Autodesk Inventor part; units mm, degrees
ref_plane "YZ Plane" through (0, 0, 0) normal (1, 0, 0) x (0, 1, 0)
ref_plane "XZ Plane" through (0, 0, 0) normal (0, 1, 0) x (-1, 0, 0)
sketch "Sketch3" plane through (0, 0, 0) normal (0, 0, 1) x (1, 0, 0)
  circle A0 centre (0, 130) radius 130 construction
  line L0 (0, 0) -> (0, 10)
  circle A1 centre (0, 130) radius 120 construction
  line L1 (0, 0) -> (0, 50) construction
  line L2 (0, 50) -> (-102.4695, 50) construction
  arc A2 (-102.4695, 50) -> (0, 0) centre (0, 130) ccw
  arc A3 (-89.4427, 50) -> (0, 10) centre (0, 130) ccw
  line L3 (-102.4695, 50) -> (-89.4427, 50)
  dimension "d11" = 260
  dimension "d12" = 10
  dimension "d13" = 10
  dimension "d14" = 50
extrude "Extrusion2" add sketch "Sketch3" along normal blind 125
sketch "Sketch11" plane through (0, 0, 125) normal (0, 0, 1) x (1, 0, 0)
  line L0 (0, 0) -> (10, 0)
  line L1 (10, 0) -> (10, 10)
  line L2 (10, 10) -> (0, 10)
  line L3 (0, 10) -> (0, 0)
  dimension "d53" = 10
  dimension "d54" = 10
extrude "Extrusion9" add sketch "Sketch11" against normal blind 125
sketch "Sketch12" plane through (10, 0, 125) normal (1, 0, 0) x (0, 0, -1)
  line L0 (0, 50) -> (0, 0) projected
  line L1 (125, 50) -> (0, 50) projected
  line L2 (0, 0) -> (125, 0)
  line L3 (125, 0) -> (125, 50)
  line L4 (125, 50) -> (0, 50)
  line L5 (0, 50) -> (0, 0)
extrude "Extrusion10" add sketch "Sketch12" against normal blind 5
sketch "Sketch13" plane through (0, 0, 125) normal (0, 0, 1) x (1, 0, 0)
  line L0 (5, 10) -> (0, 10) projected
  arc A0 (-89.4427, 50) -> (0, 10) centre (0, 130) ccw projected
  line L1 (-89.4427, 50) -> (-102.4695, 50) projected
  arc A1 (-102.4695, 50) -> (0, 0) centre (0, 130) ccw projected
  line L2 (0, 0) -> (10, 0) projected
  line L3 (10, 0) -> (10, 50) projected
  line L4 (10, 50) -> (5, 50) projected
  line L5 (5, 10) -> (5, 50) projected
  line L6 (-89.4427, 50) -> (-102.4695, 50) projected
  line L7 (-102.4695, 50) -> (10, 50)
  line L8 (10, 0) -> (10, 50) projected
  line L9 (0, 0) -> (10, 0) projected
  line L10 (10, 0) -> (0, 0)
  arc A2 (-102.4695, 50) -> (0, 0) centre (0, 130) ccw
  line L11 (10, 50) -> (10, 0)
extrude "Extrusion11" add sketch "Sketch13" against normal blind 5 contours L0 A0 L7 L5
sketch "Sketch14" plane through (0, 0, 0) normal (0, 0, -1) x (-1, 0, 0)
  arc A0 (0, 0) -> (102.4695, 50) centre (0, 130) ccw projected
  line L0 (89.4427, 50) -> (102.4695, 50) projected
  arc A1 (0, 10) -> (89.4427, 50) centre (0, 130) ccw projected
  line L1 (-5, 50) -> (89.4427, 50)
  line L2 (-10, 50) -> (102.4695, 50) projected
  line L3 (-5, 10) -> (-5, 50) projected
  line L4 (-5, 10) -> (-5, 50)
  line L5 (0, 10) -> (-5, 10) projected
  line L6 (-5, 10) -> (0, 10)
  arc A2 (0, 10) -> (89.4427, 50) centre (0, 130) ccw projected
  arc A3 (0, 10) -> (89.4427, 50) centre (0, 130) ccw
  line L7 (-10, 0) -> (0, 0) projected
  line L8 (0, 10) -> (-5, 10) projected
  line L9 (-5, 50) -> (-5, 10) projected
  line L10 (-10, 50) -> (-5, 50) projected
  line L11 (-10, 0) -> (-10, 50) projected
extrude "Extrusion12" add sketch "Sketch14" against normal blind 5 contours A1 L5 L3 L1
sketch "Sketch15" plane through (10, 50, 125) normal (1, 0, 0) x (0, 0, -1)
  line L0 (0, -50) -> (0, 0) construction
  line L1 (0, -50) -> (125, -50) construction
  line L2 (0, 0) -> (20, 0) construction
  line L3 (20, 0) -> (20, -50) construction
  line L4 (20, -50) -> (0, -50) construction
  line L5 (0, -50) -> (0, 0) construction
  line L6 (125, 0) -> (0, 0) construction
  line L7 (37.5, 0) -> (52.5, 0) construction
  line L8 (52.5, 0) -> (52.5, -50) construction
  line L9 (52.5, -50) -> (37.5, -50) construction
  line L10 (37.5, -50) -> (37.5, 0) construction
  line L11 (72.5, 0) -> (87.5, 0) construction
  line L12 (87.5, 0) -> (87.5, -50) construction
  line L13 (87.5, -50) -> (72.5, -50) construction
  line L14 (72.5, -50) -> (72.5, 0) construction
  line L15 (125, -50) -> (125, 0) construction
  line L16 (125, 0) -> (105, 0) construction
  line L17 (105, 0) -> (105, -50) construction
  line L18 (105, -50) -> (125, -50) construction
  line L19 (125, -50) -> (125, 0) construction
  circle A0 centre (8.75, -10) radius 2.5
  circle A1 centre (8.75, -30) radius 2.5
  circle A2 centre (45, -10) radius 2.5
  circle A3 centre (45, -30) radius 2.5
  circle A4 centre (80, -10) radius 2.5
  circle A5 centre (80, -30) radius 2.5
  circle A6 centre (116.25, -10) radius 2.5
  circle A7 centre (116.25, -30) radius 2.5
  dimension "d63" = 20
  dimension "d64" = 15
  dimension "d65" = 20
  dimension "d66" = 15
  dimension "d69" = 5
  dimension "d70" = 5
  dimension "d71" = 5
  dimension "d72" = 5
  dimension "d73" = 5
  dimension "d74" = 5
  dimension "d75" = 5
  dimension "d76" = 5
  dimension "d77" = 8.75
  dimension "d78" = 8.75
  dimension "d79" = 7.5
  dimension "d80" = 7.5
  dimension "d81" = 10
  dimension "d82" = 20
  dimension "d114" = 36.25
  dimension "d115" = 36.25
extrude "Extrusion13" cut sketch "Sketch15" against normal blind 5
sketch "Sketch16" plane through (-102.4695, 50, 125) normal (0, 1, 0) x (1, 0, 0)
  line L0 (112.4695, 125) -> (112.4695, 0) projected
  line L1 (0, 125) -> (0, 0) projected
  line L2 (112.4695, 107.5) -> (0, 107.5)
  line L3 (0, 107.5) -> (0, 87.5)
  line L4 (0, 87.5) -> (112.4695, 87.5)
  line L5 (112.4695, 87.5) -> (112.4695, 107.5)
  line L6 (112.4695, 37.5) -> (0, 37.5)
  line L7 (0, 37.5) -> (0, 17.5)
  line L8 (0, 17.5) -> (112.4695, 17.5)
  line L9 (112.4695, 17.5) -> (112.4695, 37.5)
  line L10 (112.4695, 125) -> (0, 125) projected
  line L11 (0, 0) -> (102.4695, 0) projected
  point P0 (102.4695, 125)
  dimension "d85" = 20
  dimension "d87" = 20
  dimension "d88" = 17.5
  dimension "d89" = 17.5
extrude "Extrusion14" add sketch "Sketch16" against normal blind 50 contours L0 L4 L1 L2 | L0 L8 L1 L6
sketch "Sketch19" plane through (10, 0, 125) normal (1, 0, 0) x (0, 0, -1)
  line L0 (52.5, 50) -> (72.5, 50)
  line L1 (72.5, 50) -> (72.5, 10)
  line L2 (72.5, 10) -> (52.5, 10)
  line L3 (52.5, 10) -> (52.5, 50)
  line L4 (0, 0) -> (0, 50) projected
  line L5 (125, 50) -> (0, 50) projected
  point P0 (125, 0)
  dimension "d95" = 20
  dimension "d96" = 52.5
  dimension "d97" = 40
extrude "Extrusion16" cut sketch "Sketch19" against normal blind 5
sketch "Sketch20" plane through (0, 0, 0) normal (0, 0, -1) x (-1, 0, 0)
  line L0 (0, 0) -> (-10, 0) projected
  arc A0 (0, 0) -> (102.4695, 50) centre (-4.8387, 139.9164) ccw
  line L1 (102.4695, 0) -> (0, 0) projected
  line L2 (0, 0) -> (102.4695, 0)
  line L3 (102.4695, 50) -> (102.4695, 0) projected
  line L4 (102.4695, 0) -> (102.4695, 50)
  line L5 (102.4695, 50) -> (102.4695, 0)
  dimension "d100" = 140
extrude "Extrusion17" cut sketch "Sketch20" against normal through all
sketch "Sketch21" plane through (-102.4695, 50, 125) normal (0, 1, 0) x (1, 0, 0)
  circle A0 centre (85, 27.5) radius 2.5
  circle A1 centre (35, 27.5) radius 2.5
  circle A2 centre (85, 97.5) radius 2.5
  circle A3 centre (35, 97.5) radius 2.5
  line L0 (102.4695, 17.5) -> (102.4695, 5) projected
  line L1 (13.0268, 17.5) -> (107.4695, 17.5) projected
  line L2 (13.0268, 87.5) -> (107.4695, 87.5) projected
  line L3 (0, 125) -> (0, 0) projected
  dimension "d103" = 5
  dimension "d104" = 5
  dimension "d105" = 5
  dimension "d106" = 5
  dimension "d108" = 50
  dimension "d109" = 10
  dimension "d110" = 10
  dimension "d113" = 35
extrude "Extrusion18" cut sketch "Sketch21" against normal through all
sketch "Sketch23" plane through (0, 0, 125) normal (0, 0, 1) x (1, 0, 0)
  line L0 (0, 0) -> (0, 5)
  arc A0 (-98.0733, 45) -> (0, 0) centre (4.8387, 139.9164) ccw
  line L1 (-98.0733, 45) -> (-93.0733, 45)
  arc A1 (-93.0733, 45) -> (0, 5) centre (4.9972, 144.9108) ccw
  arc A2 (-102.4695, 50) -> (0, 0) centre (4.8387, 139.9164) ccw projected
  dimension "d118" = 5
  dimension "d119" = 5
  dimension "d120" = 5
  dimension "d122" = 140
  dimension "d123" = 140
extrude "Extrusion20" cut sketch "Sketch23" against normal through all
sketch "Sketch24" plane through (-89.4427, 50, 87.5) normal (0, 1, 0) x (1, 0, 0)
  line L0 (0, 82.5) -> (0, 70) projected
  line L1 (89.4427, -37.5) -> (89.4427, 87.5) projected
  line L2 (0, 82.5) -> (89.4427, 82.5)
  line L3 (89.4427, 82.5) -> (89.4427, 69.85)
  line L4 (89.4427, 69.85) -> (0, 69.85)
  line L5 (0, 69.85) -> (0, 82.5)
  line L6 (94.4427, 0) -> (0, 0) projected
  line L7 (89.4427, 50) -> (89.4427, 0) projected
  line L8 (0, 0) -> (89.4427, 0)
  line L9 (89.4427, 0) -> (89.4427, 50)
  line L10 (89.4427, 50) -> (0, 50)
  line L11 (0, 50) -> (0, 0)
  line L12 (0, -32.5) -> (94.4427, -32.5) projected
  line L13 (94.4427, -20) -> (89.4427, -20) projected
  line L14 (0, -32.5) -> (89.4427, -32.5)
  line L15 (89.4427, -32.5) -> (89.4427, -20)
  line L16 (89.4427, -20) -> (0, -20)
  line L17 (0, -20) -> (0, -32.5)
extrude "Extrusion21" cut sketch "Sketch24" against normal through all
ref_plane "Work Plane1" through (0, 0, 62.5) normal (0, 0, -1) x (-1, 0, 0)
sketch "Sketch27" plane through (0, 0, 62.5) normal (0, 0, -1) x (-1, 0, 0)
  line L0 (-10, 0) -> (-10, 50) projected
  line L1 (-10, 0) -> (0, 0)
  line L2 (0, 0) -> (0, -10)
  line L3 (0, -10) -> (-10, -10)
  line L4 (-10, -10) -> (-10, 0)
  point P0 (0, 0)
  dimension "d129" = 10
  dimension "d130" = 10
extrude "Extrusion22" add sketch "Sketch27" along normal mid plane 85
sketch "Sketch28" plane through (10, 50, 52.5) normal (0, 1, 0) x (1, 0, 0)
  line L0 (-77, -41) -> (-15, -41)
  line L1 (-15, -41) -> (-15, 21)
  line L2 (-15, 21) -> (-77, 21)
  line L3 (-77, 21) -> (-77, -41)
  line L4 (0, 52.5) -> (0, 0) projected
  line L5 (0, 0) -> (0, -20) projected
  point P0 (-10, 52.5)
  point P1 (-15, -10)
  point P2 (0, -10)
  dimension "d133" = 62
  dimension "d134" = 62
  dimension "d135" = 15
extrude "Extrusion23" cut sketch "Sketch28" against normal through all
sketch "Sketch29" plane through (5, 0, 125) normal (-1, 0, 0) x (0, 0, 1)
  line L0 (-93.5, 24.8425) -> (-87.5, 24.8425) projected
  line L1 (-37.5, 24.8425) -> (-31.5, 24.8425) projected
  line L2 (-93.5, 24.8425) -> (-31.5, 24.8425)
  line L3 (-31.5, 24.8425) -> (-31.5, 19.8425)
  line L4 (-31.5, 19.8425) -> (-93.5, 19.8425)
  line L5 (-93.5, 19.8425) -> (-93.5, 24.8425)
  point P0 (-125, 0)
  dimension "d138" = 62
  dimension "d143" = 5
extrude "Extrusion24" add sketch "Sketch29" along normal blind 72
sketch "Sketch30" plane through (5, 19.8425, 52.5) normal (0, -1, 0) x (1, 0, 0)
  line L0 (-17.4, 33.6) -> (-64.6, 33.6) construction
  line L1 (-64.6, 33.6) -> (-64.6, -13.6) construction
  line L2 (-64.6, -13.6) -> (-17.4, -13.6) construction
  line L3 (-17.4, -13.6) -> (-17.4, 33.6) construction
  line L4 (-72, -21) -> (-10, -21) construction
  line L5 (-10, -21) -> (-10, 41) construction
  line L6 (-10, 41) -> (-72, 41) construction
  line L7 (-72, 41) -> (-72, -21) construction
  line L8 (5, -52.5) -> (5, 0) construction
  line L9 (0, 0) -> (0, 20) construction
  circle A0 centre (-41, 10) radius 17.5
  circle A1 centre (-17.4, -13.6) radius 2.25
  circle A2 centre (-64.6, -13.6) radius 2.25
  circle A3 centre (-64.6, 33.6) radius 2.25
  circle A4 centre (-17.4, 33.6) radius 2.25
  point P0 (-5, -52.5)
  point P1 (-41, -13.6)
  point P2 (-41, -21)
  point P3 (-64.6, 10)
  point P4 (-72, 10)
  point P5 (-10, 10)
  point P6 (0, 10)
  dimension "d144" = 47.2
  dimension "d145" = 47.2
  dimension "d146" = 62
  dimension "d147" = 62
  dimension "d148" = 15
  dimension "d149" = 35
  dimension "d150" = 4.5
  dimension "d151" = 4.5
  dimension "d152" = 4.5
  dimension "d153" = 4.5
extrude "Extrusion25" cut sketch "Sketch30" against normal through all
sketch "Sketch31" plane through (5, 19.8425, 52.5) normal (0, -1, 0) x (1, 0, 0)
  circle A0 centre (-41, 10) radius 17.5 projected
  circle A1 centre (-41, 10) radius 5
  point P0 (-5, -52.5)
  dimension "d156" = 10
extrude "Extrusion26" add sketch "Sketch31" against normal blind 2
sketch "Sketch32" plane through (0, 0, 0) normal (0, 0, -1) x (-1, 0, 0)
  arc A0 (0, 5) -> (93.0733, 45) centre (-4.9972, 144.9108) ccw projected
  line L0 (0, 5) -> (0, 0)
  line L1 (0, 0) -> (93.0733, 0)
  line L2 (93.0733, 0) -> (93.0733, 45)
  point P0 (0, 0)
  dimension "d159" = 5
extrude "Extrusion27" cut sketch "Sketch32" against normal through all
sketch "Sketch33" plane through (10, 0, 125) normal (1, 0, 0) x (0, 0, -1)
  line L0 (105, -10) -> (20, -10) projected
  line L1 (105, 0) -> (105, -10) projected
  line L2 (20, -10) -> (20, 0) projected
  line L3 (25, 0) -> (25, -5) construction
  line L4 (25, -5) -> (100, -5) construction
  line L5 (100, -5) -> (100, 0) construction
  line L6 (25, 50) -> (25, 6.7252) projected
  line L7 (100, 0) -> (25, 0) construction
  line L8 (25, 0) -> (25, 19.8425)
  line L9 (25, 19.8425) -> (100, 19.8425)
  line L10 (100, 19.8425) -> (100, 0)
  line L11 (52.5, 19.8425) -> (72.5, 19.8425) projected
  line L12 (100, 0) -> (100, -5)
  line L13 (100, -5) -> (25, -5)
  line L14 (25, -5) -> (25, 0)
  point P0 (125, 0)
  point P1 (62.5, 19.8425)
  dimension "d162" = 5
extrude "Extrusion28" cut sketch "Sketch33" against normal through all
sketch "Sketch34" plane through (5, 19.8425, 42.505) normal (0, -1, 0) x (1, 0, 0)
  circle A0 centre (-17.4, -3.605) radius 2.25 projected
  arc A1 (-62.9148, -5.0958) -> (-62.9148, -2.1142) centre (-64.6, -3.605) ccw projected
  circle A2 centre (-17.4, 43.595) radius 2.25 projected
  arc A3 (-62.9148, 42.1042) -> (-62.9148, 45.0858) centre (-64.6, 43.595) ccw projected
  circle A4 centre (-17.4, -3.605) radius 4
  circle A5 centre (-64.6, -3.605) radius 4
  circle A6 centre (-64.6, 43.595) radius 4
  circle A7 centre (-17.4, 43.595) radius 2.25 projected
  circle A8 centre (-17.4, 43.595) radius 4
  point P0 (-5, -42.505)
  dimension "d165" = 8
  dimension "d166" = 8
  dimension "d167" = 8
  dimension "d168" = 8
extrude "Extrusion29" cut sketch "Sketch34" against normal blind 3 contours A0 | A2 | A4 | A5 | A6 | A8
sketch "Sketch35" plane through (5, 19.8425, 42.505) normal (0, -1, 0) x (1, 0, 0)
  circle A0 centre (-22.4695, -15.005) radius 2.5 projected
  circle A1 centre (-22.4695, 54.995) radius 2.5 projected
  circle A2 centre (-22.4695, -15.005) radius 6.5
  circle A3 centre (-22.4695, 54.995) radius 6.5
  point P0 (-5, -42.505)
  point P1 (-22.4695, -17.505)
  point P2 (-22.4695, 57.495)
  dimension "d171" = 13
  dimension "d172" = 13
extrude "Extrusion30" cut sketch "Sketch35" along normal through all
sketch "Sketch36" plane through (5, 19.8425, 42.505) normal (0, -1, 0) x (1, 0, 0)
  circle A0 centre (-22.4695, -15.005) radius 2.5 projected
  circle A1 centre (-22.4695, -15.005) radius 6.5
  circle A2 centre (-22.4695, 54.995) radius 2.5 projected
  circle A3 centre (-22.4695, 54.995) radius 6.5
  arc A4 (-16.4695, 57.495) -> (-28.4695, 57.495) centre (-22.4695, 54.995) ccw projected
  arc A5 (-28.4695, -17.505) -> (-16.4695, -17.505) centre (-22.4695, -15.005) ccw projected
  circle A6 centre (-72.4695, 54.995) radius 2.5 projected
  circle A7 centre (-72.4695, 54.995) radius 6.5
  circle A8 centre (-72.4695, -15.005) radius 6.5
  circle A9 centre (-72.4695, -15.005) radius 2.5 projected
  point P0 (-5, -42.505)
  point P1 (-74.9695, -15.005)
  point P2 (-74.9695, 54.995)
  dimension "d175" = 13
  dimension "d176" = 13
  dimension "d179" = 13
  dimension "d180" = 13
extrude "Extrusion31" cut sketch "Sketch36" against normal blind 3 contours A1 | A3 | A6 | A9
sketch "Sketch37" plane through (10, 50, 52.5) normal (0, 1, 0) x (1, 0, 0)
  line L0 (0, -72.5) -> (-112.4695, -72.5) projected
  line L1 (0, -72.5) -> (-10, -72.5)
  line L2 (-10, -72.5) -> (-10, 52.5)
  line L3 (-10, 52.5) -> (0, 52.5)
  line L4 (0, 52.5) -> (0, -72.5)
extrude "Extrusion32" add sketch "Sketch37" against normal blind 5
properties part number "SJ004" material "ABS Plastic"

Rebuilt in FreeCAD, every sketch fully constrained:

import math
import FreeCAD as App
import Part
import Sketcher

V = App.Vector


def add_polygon(sketch, points):
    """Adds a closed chain of lines whose ends are joined by coincident constraints."""
    first, n = sketch.GeometryCount, len(points)
    for a, b in zip(points, points[1:] + points[:1]):
        sketch.addGeometry(Part.LineSegment(App.Vector(*a, 0), App.Vector(*b, 0)), False)
    for i in range(n):
        sketch.addConstraint(Sketcher.Constraint("Coincident", first + i, 2, first + (i + 1) % n, 1))

doc = App.newDocument("Part")
body = doc.addObject("PartDesign::Body", "Body")

sketch1 = doc.addObject("Sketcher::SketchObject", "Sketch")
body.addObject(sketch1)
sketch1.AttachmentSupport = (doc.XY_Plane, [""])
sketch1.MapMode = "FlatFace"
sketch1.addGeometry(Part.ArcOfCircle(Part.Circle(V(0, 130, 0), V(0, 0, 1), 130), math.radians(-142), math.radians(-90)), False)
sketch1.addGeometry(Part.LineSegment(V(0, 0, 0), V(0, 10, 0)), False)
sketch1.addGeometry(Part.ArcOfCircle(Part.Circle(V(0, 130, 0), V(0, 0, 1), 120), math.radians(-138), math.radians(-90)), False)
sketch1.addGeometry(Part.LineSegment(V(-89, 50, 0), V(-102, 50, 0)), False)
sketch1.addConstraint(Sketcher.Constraint("Coincident", 0, 2, 1, 1))
sketch1.addConstraint(Sketcher.Constraint("Coincident", 1, 2, 2, 2))
sketch1.addConstraint(Sketcher.Constraint("Coincident", 2, 1, 3, 1))
sketch1.addConstraint(Sketcher.Constraint("Coincident", 3, 2, 0, 1))
sketch1.addConstraint(Sketcher.Constraint("Vertical", 1))
sketch1.addConstraint(Sketcher.Constraint("Horizontal", 3))
sketch1.addConstraint(Sketcher.Constraint("Coincident", 0, 2, -1, 1))
sketch1.addConstraint(Sketcher.Constraint("Coincident", 2, 3, 0, 3))
sketch1.addConstraint(Sketcher.Constraint("PointOnObject", 0, 3, -2))
sketch1.addConstraint(Sketcher.Constraint("Radius", 0, 130.0))
sketch1.addConstraint(Sketcher.Constraint("DistanceY", 1, 1, 1, 2, 10.0))
sketch1.addConstraint(Sketcher.Constraint("DistanceY", -1, 1, 2, 1, 50.0))
pad1 = doc.addObject("PartDesign::Pad", "Pad")
body.addObject(pad1)
pad1.Profile = sketch1
pad1.Length = 125

sketch2 = doc.addObject("Sketcher::SketchObject", "Sketch001")
body.addObject(sketch2)
sketch2.AttachmentSupport = (doc.XY_Plane, [""])
sketch2.MapMode = "FlatFace"
sketch2.AttachmentOffset = App.Placement(V(0, 0, 125), App.Rotation())
add_polygon(sketch2, [(0, 10), (0, 0), (10, 0), (10, 10)])
sketch2.addConstraint(Sketcher.Constraint("Vertical", 0))
sketch2.addConstraint(Sketcher.Constraint("Horizontal", 1))
sketch2.addConstraint(Sketcher.Constraint("Vertical", 2))
sketch2.addConstraint(Sketcher.Constraint("Horizontal", 3))
sketch2.addConstraint(Sketcher.Constraint("Coincident", 0, 2, -1, 1))
sketch2.addConstraint(Sketcher.Constraint("Equal", 3, 0))
sketch2.addConstraint(Sketcher.Constraint("DistanceX", 1, 1, 1, 2, 10.0))
pad2 = doc.addObject("PartDesign::Pad", "Pad001")
body.addObject(pad2)
pad2.Profile = sketch2
pad2.Length = 125
pad2.Reversed = True

sketch3 = doc.addObject("Sketcher::SketchObject", "Sketch002")
body.addObject(sketch3)
sketch3.AttachmentSupport = (doc.YZ_Plane, [""])
sketch3.MapMode = "FlatFace"
sketch3.AttachmentOffset = App.Placement(V(0, 0, 10), App.Rotation())
add_polygon(sketch3, [(50, 0), (50, 125), (0, 125), (0, 0)])
sketch3.addConstraint(Sketcher.Constraint("Vertical", 0))
sketch3.addConstraint(Sketcher.Constraint("Horizontal", 1))
sketch3.addConstraint(Sketcher.Constraint("Vertical", 2))
sketch3.addConstraint(Sketcher.Constraint("Horizontal", 3))
sketch3.addConstraint(Sketcher.Constraint("Coincident", 2, 2, -1, 1))
sketch3.addConstraint(Sketcher.Constraint("DistanceX", 1, 2, 1, 1, 50.0))
sketch3.addConstraint(Sketcher.Constraint("DistanceY", 0, 1, 0, 2, 125.0))
pad3 = doc.addObject("PartDesign::Pad", "Pad002")
body.addObject(pad3)
pad3.Profile = sketch3
pad3.Length = 5
pad3.Reversed = True

sketch4 = doc.addObject("Sketcher::SketchObject", "Sketch003")
body.addObject(sketch4)
sketch4.AttachmentSupport = (doc.XY_Plane, [""])
sketch4.MapMode = "FlatFace"
sketch4.AttachmentOffset = App.Placement(V(0, 0, 125), App.Rotation())
sketch4.addGeometry(Part.LineSegment(V(0, 10, 0), V(5, 10, 0)), False)
sketch4.addGeometry(Part.LineSegment(V(5, 10, 0), V(5, 50, 0)), False)
sketch4.addGeometry(Part.LineSegment(V(5, 50, 0), V(-89, 50, 0)), False)
sketch4.addGeometry(Part.ArcOfCircle(Part.Circle(V(0, 130, 0), V(0, 0, 1), 120), math.radians(-138), math.radians(-90)), False)
sketch4.addConstraint(Sketcher.Constraint("Coincident", 0, 2, 1, 1))
sketch4.addConstraint(Sketcher.Constraint("Coincident", 1, 2, 2, 1))
sketch4.addConstraint(Sketcher.Constraint("Coincident", 2, 2, 3, 1))
sketch4.addConstraint(Sketcher.Constraint("Tangent", 3, 2, 0, 1))
sketch4.addConstraint(Sketcher.Constraint("Horizontal", 0))
sketch4.addConstraint(Sketcher.Constraint("Vertical", 1))
sketch4.addConstraint(Sketcher.Constraint("Horizontal", 2))
sketch4.addConstraint(Sketcher.Constraint("PointOnObject", 3, 3, -2))
sketch4.addConstraint(Sketcher.Constraint("Radius", 3, 120.0))
sketch4.addConstraint(Sketcher.Constraint("DistanceX", 0, 1, 0, 2, 5.0))
sketch4.addConstraint(Sketcher.Constraint("DistanceY", 1, 1, 1, 2, 40.0))
sketch4.addConstraint(Sketcher.Constraint("DistanceY", -1, 1, 3, 3, 130.0))
pad4 = doc.addObject("PartDesign::Pad", "Pad003")
body.addObject(pad4)
pad4.Profile = sketch4
pad4.Length = 5
pad4.Reversed = True

sketch5 = doc.addObject("Sketcher::SketchObject", "Sketch004")
body.addObject(sketch5)
sketch5.AttachmentSupport = (doc.XY_Plane, [""])
sketch5.MapMode = "FlatFace"
sketch5.addGeometry(Part.ArcOfCircle(Part.Circle(V(0, 130, 0), V(0, 0, 1), 120), math.radians(-138), math.radians(-90)), False)
sketch5.addGeometry(Part.LineSegment(V(-89, 50, 0), V(5, 50, 0)), False)
sketch5.addGeometry(Part.LineSegment(V(5, 50, 0), V(5, 10, 0)), False)
sketch5.addGeometry(Part.LineSegment(V(5, 10, 0), V(0, 10, 0)), False)
sketch5.addConstraint(Sketcher.Constraint("Coincident", 0, 1, 1, 1))
sketch5.addConstraint(Sketcher.Constraint("Coincident", 1, 2, 2, 1))
sketch5.addConstraint(Sketcher.Constraint("Coincident", 2, 2, 3, 1))
sketch5.addConstraint(Sketcher.Constraint("Tangent", 3, 2, 0, 2))
sketch5.addConstraint(Sketcher.Constraint("Horizontal", 1))
sketch5.addConstraint(Sketcher.Constraint("Vertical", 2))
sketch5.addConstraint(Sketcher.Constraint("Horizontal", 3))
sketch5.addConstraint(Sketcher.Constraint("PointOnObject", 0, 3, -2))
sketch5.addConstraint(Sketcher.Constraint("Radius", 0, 120.0))
sketch5.addConstraint(Sketcher.Constraint("DistanceX", 3, 2, 3, 1, 5.0))
sketch5.addConstraint(Sketcher.Constraint("DistanceY", 2, 2, 2, 1, 40.0))
sketch5.addConstraint(Sketcher.Constraint("DistanceY", -1, 1, 0, 3, 130.0))
pad5 = doc.addObject("PartDesign::Pad", "Pad004")
body.addObject(pad5)
pad5.Profile = sketch5
pad5.Length = 5

sketch6 = doc.addObject("Sketcher::SketchObject", "Sketch005")
body.addObject(sketch6)
sketch6.AttachmentSupport = (doc.YZ_Plane, [""])
sketch6.MapMode = "FlatFace"
sketch6.AttachmentOffset = App.Placement(V(0, 0, 10), App.Rotation())
sketch6.addGeometry(Part.Circle(V(40, 116.2, 0), V(0, 0, 1), 2.5), False)
sketch6.addGeometry(Part.Circle(V(20, 116.2, 0), V(0, 0, 1), 2.5), False)
sketch6.addGeometry(Part.Circle(V(40, 80, 0), V(0, 0, 1), 2.5), False)
sketch6.addGeometry(Part.Circle(V(20, 80, 0), V(0, 0, 1), 2.5), False)
sketch6.addGeometry(Part.Circle(V(40, 45, 0), V(0, 0, 1), 2.5), False)
sketch6.addGeometry(Part.Circle(V(20, 45, 0), V(0, 0, 1), 2.5), False)
sketch6.addGeometry(Part.Circle(V(40, 8.8, 0), V(0, 0, 1), 2.5), False)
sketch6.addGeometry(Part.Circle(V(20, 8.8, 0), V(0, 0, 1), 2.5), False)
sketch6.addConstraint(Sketcher.Constraint("Equal", 0, 1))
sketch6.addConstraint(Sketcher.Constraint("Equal", 1, 2))
sketch6.addConstraint(Sketcher.Constraint("Equal", 2, 3))
sketch6.addConstraint(Sketcher.Constraint("Equal", 3, 4))
sketch6.addConstraint(Sketcher.Constraint("Equal", 4, 5))
sketch6.addConstraint(Sketcher.Constraint("Equal", 5, 6))
sketch6.addConstraint(Sketcher.Constraint("Equal", 6, 7))
sketch6.addConstraint(Sketcher.Constraint("Horizontal", 0, 3, 1, 3))
sketch6.addConstraint(Sketcher.Constraint("Horizontal", 2, 3, 3, 3))
sketch6.addConstraint(Sketcher.Constraint("Horizontal", 4, 3, 5, 3))
sketch6.addConstraint(Sketcher.Constraint("Horizontal", 6, 3, 7, 3))
sketch6.addConstraint(Sketcher.Constraint("Vertical", 0, 3, 2, 3))
sketch6.addConstraint(Sketcher.Constraint("Vertical", 1, 3, 3, 3))
sketch6.addConstraint(Sketcher.Constraint("Vertical", 2, 3, 4, 3))
sketch6.addConstraint(Sketcher.Constraint("Vertical", 3, 3, 5, 3))
sketch6.addConstraint(Sketcher.Constraint("Vertical", 4, 3, 6, 3))
sketch6.addConstraint(Sketcher.Constraint("Vertical", 5, 3, 7, 3))
sketch6.addConstraint(Sketcher.Constraint("Diameter", 0, 5.0))
sketch6.addConstraint(Sketcher.Constraint("DistanceX", -1, 1, 1, 3, 20.0))
sketch6.addConstraint(Sketcher.Constraint("DistanceX", 1, 3, 0, 3, 20.0))
sketch6.addConstraint(Sketcher.Constraint("DistanceY", -1, 1, 6, 3, 8.75))
sketch6.addConstraint(Sketcher.Constraint("DistanceY", 2, 3, 0, 3, 36.25))
sketch6.addConstraint(Sketcher.Constraint("DistanceY", 6, 3, 4, 3, 36.25))
sketch6.addConstraint(Sketcher.Constraint("DistanceY", -1, 1, 2, 3, 80.0))
pocket1 = doc.addObject("PartDesign::Pocket", "Pocket")
body.addObject(pocket1)
pocket1.Profile = sketch6
pocket1.Length = 5

sketch7 = doc.addObject("Sketcher::SketchObject", "Sketch006")
body.addObject(sketch7)
sketch7.AttachmentSupport = (doc.XZ_Plane, [""])
sketch7.MapMode = "FlatFace"
sketch7.AttachmentOffset = App.Placement(V(0, 0, -50), App.Rotation())
add_polygon(sketch7, [(10, 38), (10, 18), (-102, 18), (-102, 38)])
add_polygon(sketch7, [(10, 108), (10, 88), (-102, 88), (-102, 108)])
sketch7.addConstraint(Sketcher.Constraint("Vertical", 0))
sketch7.addConstraint(Sketcher.Constraint("Horizontal", 1))
sketch7.addConstraint(Sketcher.Constraint("Vertical", 2))
sketch7.addConstraint(Sketcher.Constraint("Horizontal", 3))
sketch7.addConstraint(Sketcher.Constraint("Vertical", 4))
sketch7.addConstraint(Sketcher.Constraint("Horizontal", 5))
sketch7.addConstraint(Sketcher.Constraint("Vertical", 6))
sketch7.addConstraint(Sketcher.Constraint("Horizontal", 7))
sketch7.addConstraint(Sketcher.Constraint("Vertical", 3, 2, 4, 2))
sketch7.addConstraint(Sketcher.Constraint("Vertical", 2, 2, 5, 2))
sketch7.addConstraint(Sketcher.Constraint("Equal", 2, 4))
sketch7.addConstraint(Sketcher.Constraint("DistanceY", 0, 2, 0, 1, 20.0))
sketch7.addConstraint(Sketcher.Constraint("DistanceY", -1, 1, 0, 2, 17.5))
sketch7.addConstraint(Sketcher.Constraint("DistanceX", -1, 1, 0, 2, 10.0))
sketch7.addConstraint(Sketcher.Constraint("DistanceY", 3, 2, 4, 2, 50.0))
sketch7.addConstraint(Sketcher.Constraint("DistanceX", 1, 2, 1, 1, 112.4695))
pad6 = doc.addObject("PartDesign::Pad", "Pad005")
body.addObject(pad6)
pad6.Profile = sketch7
pad6.Length = 50

sketch8 = doc.addObject("Sketcher::SketchObject", "Sketch007")
body.addObject(sketch8)
sketch8.AttachmentSupport = (doc.YZ_Plane, [""])
sketch8.MapMode = "FlatFace"
sketch8.AttachmentOffset = App.Placement(V(0, 0, 10), App.Rotation())
add_polygon(sketch8, [(50, 52), (50, 72), (10, 72), (10, 52)])
sketch8.addConstraint(Sketcher.Constraint("Vertical", 0))
sketch8.addConstraint(Sketcher.Constraint("Horizontal", 1))
sketch8.addConstraint(Sketcher.Constraint("Vertical", 2))
sketch8.addConstraint(Sketcher.Constraint("Horizontal", 3))
sketch8.addConstraint(Sketcher.Constraint("DistanceX", 1, 2, 1, 1, 40.0))
sketch8.addConstraint(Sketcher.Constraint("DistanceY", 0, 1, 0, 2, 20.0))
sketch8.addConstraint(Sketcher.Constraint("DistanceY", -1, 1, 2, 2, 52.5))
sketch8.addConstraint(Sketcher.Constraint("DistanceX", -1, 1, 0, 2, 50.0))
pocket2 = doc.addObject("PartDesign::Pocket", "Pocket001")
body.addObject(pocket2)
pocket2.Profile = sketch8
pocket2.Length = 5

sketch9 = doc.addObject("Sketcher::SketchObject", "Sketch008")
body.addObject(sketch9)
sketch9.AttachmentSupport = (doc.XY_Plane, [""])
sketch9.MapMode = "FlatFace"
sketch9.addGeometry(Part.ArcOfCircle(Part.Circle(V(5, 140, 0), V(0, 0, 1), 140), math.radians(-140), math.radians(-92)), False)
sketch9.addGeometry(Part.LineSegment(V(0, 0, 0), V(-102, 0, 0)), False)
sketch9.addGeometry(Part.LineSegment(V(-102, 0, 0), V(-102, 50, 0)), False)
sketch9.addConstraint(Sketcher.Constraint("Coincident", 0, 2, 1, 1))
sketch9.addConstraint(Sketcher.Constraint("Coincident", 1, 2, 2, 1))
sketch9.addConstraint(Sketcher.Constraint("Coincident", 2, 2, 0, 1))
sketch9.addConstraint(Sketcher.Constraint("Horizontal", 1))
sketch9.addConstraint(Sketcher.Constraint("Vertical", 2))
sketch9.addConstraint(Sketcher.Constraint("Coincident", 0, 2, -1, 1))
sketch9.addConstraint(Sketcher.Constraint("Radius", 0, 140.0))
sketch9.addConstraint(Sketcher.Constraint("DistanceY", 2, 1, 2, 2, 50.0))
sketch9.addConstraint(Sketcher.Constraint("DistanceX", 1, 2, 1, 1, 102.4695))
pocket3 = doc.addObject("PartDesign::Pocket", "Pocket002")
body.addObject(pocket3)
pocket3.Profile = sketch9
pocket3.Type = "ThroughAll"
pocket3.Reversed = True

sketch10 = doc.addObject("Sketcher::SketchObject", "Sketch009")
body.addObject(sketch10)
sketch10.AttachmentSupport = (doc.XZ_Plane, [""])
sketch10.MapMode = "FlatFace"
sketch10.AttachmentOffset = App.Placement(V(0, 0, -50), App.Rotation())
sketch10.addGeometry(Part.Circle(V(-17.5, 97.5, 0), V(0, 0, 1), 2.5), False)
sketch10.addGeometry(Part.Circle(V(-67.5, 97.5, 0), V(0, 0, 1), 2.5), False)
sketch10.addGeometry(Part.Circle(V(-17.5, 27.5, 0), V(0, 0, 1), 2.5), False)
sketch10.addGeometry(Part.Circle(V(-67.5, 27.5, 0), V(0, 0, 1), 2.5), False)
sketch10.addConstraint(Sketcher.Constraint("Equal", 0, 1))
sketch10.addConstraint(Sketcher.Constraint("Equal", 1, 2))
sketch10.addConstraint(Sketcher.Constraint("Equal", 2, 3))
sketch10.addConstraint(Sketcher.Constraint("Horizontal", 0, 3, 1, 3))
sketch10.addConstraint(Sketcher.Constraint("Horizontal", 2, 3, 3, 3))
sketch10.addConstraint(Sketcher.Constraint("Vertical", 0, 3, 2, 3))
sketch10.addConstraint(Sketcher.Constraint("Vertical", 1, 3, 3, 3))
sketch10.addConstraint(Sketcher.Constraint("Diameter", 0, 5.0))
sketch10.addConstraint(Sketcher.Constraint("DistanceX", 1, 3, 0, 3, 50.0))
sketch10.addConstraint(Sketcher.Constraint("DistanceY", 2, 3, 0, 3, 70.0))
sketch10.addConstraint(Sketcher.Constraint("DistanceY", -1, 1, 0, 3, 97.5))
sketch10.addConstraint(Sketcher.Constraint("DistanceX", 0, 3, -1, 1, 17.4695))
pocket4 = doc.addObject("PartDesign::Pocket", "Pocket003")
body.addObject(pocket4)
pocket4.Profile = sketch10
pocket4.Type = "ThroughAll"
pocket4.Reversed = True

sketch11 = doc.addObject("Sketcher::SketchObject", "Sketch010")
body.addObject(sketch11)
sketch11.AttachmentSupport = (doc.XY_Plane, [""])
sketch11.MapMode = "FlatFace"
sketch11.AttachmentOffset = App.Placement(V(0, 0, 125), App.Rotation())
sketch11.addGeometry(Part.ArcOfCircle(Part.Circle(V(5, 140, 0), V(0, 0, 1), 140), math.radians(-137), math.radians(-92)), False)
sketch11.addGeometry(Part.LineSegment(V(0, 0, 0), V(0, 5, 0)), False)
sketch11.addGeometry(Part.ArcOfCircle(Part.Circle(V(5, 145, 0), V(0, 0, 1), 140), math.radians(-134), math.radians(-92)), False)
sketch11.addGeometry(Part.LineSegment(V(-93, 45, 0), V(-98, 45, 0)), False)
sketch11.addConstraint(Sketcher.Constraint("Coincident", 0, 2, 1, 1))
sketch11.addConstraint(Sketcher.Constraint("Coincident", 1, 2, 2, 2))
sketch11.addConstraint(Sketcher.Constraint("Coincident", 2, 1, 3, 1))
sketch11.addConstraint(Sketcher.Constraint("Coincident", 3, 2, 0, 1))
sketch11.addConstraint(Sketcher.Constraint("Vertical", 1))
sketch11.addConstraint(Sketcher.Constraint("Horizontal", 3))
sketch11.addConstraint(Sketcher.Constraint("Coincident", 0, 2, -1, 1))
sketch11.addConstraint(Sketcher.Constraint("Equal", 0, 2))
sketch11.addConstraint(Sketcher.Constraint("Equal", 3, 1))
sketch11.addConstraint(Sketcher.Constraint("Radius", 0, 140.0))
sketch11.addConstraint(Sketcher.Constraint("DistanceX", 3, 2, 3, 1, 5.0))
sketch11.addConstraint(Sketcher.Constraint("DistanceY", -1, 1, 2, 1, 45.0))
sketch11.addConstraint(Sketcher.Constraint("DistanceX", 3, 2, 0, 3, 102.912))
pocket5 = doc.addObject("PartDesign::Pocket", "Pocket004")
body.addObject(pocket5)
pocket5.Profile = sketch11
pocket5.Type = "ThroughAll"

sketch12 = doc.addObject("Sketcher::SketchObject", "Sketch011")
body.addObject(sketch12)
sketch12.AttachmentSupport = (doc.XZ_Plane, [""])
sketch12.MapMode = "FlatFace"
sketch12.AttachmentOffset = App.Placement(V(0, 0, -50), App.Rotation())
add_polygon(sketch12, [(0, 5), (-89, 5), (-89, 18), (0, 18)])
add_polygon(sketch12, [(0, 120), (0, 108), (-89, 108), (-89, 120)])
add_polygon(sketch12, [(0, 88), (0, 38), (-89, 38), (-89, 88)])
sketch12.addConstraint(Sketcher.Constraint("Horizontal", 0))
sketch12.addConstraint(Sketcher.Constraint("Vertical", 1))
sketch12.addConstraint(Sketcher.Constraint("Horizontal", 2))
sketch12.addConstraint(Sketcher.Constraint("Vertical", 3))
sketch12.addConstraint(Sketcher.Constraint("Vertical", 4))
sketch12.addConstraint(Sketcher.Constraint("Horizontal", 5))
sketch12.addConstraint(Sketcher.Constraint("Vertical", 6))
sketch12.addConstraint(Sketcher.Constraint("Horizontal", 7))
sketch12.addConstraint(Sketcher.Constraint("Vertical", 8))
sketch12.addConstraint(Sketcher.Constraint("Horizontal", 9))
sketch12.addConstraint(Sketcher.Constraint("Vertical", 10))
sketch12.addConstraint(Sketcher.Constraint("Horizontal", 11))
sketch12.addConstraint(Sketcher.Constraint("PointOnObject", 2, 2, -2))
sketch12.addConstraint(Sketcher.Constraint("PointOnObject", 4, 2, -2))
sketch12.addConstraint(Sketcher.Constraint("PointOnObject", 8, 2, -2))
sketch12.addConstraint(Sketcher.Constraint("Vertical", 1, 2, 5, 2))
sketch12.addConstraint(Sketcher.Constraint("Vertical", 6, 2, 9, 2))
sketch12.addConstraint(Sketcher.Constraint("DistanceY", 8, 2, 8, 1, 50.0))
sketch12.addConstraint(Sketcher.Constraint("DistanceY", 4, 2, 4, 1, 12.5))
sketch12.addConstraint(Sketcher.Constraint("DistanceY", -1, 1, 0, 2, 5.0))
sketch12.addConstraint(Sketcher.Constraint("DistanceY", -1, 1, 6, 2, 120.0))
sketch12.addConstraint(Sketcher.Constraint("DistanceY", 8, 2, 4, 2, 70.0))
sketch12.addConstraint(Sketcher.Constraint("DistanceY", 1, 1, 1, 2, 12.65))
sketch12.addConstraint(Sketcher.Constraint("DistanceX", 0, 2, 0, 1, 89.4427))
pocket6 = doc.addObject("PartDesign::Pocket", "Pocket005")
body.addObject(pocket6)
pocket6.Profile = sketch12
pocket6.Type = "ThroughAll"
pocket6.Reversed = True

sketch13 = doc.addObject("Sketcher::SketchObject", "Sketch012")
body.addObject(sketch13)
sketch13.AttachmentSupport = (doc.XY_Plane, [""])
sketch13.MapMode = "FlatFace"
sketch13.AttachmentOffset = App.Placement(V(0, 0, 62.5), App.Rotation())
add_polygon(sketch13, [(0, 0), (10, 0), (10, -10), (0, -10)])
sketch13.addConstraint(Sketcher.Constraint("Horizontal", 0))
sketch13.addConstraint(Sketcher.Constraint("Vertical", 1))
sketch13.addConstraint(Sketcher.Constraint("Horizontal", 2))
sketch13.addConstraint(Sketcher.Constraint("Vertical", 3))
sketch13.addConstraint(Sketcher.Constraint("Coincident", 3, 2, -1, 1))
sketch13.addConstraint(Sketcher.Constraint("Equal", 2, 1))
sketch13.addConstraint(Sketcher.Constraint("DistanceX", 0, 1, 0, 2, 10.0))
pad7 = doc.addObject("PartDesign::Pad", "Pad006")
body.addObject(pad7)
pad7.Profile = sketch13
pad7.Length = 85
pad7.Midplane = True

sketch14 = doc.addObject("Sketcher::SketchObject", "Sketch013")
body.addObject(sketch14)
sketch14.AttachmentSupport = (doc.XZ_Plane, [""])
sketch14.MapMode = "FlatFace"
sketch14.AttachmentOffset = App.Placement(V(0, 0, -50), App.Rotation())
add_polygon(sketch14, [(-67, 32), (-67, 94), (-5, 94), (-5, 32)])
sketch14.addConstraint(Sketcher.Constraint("Vertical", 0))
sketch14.addConstraint(Sketcher.Constraint("Horizontal", 1))
sketch14.addConstraint(Sketcher.Constraint("Vertical", 2))
sketch14.addConstraint(Sketcher.Constraint("Horizontal", 3))
sketch14.addConstraint(Sketcher.Constraint("Equal", 3, 0))
sketch14.addConstraint(Sketcher.Constraint("DistanceX", 1, 1, 1, 2, 62.0))
sketch14.addConstraint(Sketcher.Constraint("DistanceX", 0, 2, -1, 1, 67.0))
sketch14.addConstraint(Sketcher.Constraint("DistanceY", -1, 1, 0, 2, 93.5))
pocket7 = doc.addObject("PartDesign::Pocket", "Pocket006")
body.addObject(pocket7)
pocket7.Profile = sketch14
pocket7.Type = "ThroughAll"
pocket7.Reversed = True

sketch15 = doc.addObject("Sketcher::SketchObject", "Sketch014")
body.addObject(sketch15)
sketch15.AttachmentSupport = (doc.YZ_Plane, [""])
sketch15.MapMode = "FlatFace"
sketch15.AttachmentOffset = App.Placement(V(0, 0, 5), App.Rotation())
add_polygon(sketch15, [(25, 94), (25, 32), (20, 32), (20, 94)])
sketch15.addConstraint(Sketcher.Constraint("Vertical", 0))
sketch15.addConstraint(Sketcher.Constraint("Horizontal", 1))
sketch15.addConstraint(Sketcher.Constraint("Vertical", 2))
sketch15.addConstraint(Sketcher.Constraint("Horizontal", 3))
sketch15.addConstraint(Sketcher.Constraint("DistanceX", 1, 2, 1, 1, 5.0))
sketch15.addConstraint(Sketcher.Constraint("DistanceY", 0, 2, 0, 1, 62.0))
sketch15.addConstraint(Sketcher.Constraint("DistanceY", -1, 1, 0, 2, 31.5))
sketch15.addConstraint(Sketcher.Constraint("DistanceX", -1, 1, 0, 2, 24.8425))
pad8 = doc.addObject("PartDesign::Pad", "Pad007")
body.addObject(pad8)
pad8.Profile = sketch15
pad8.Length = 72
pad8.Reversed = True

sketch16 = doc.addObject("Sketcher::SketchObject", "Sketch015")
body.addObject(sketch16)
sketch16.AttachmentSupport = (doc.XZ_Plane, [""])
sketch16.MapMode = "FlatFace"
sketch16.AttachmentOffset = App.Placement(V(0, 0, -19.8425), App.Rotation())
sketch16.addGeometry(Part.Circle(V(-36, 62.5, 0), V(0, 0, 1), 17.5), False)
sketch16.addGeometry(Part.Circle(V(-12.4, 38.9, 0), V(0, 0, 1), 2.2), False)
sketch16.addGeometry(Part.Circle(V(-59.6, 38.9, 0), V(0, 0, 1), 2.2), False)
sketch16.addGeometry(Part.Circle(V(-59.6, 86.1, 0), V(0, 0, 1), 2.2), False)
sketch16.addGeometry(Part.Circle(V(-12.4, 86.1, 0), V(0, 0, 1), 2.2), False)
sketch16.addConstraint(Sketcher.Constraint("Equal", 1, 2))
sketch16.addConstraint(Sketcher.Constraint("Equal", 2, 3))
sketch16.addConstraint(Sketcher.Constraint("Equal", 3, 4))
sketch16.addConstraint(Sketcher.Constraint("Horizontal", 1, 3, 2, 3))
sketch16.addConstraint(Sketcher.Constraint("Horizontal", 3, 3, 4, 3))
sketch16.addConstraint(Sketcher.Constraint("Vertical", 2, 3, 3, 3))
sketch16.addConstraint(Sketcher.Constraint("Vertical", 1, 3, 4, 3))
sketch16.addConstraint(Sketcher.Constraint("Diameter", 0, 35.0))
sketch16.addConstraint(Sketcher.Constraint("Diameter", 1, 4.5))
sketch16.addConstraint(Sketcher.Constraint("DistanceX", 2, 3, 1, 3, 47.2))
sketch16.addConstraint(Sketcher.Constraint("DistanceY", 2, 3, 3, 3, 47.2))
sketch16.addConstraint(Sketcher.Constraint("DistanceX", 0, 3, -1, 1, 36.0))
sketch16.addConstraint(Sketcher.Constraint("DistanceY", -1, 1, 0, 3, 62.5))
sketch16.addConstraint(Sketcher.Constraint("DistanceX", 1, 3, -1, 1, 12.4))
sketch16.addConstraint(Sketcher.Constraint("DistanceY", -1, 1, 1, 3, 38.9))
pocket8 = doc.addObject("PartDesign::Pocket", "Pocket007")
body.addObject(pocket8)
pocket8.Profile = sketch16
pocket8.Type = "ThroughAll"

sketch17 = doc.addObject("Sketcher::SketchObject", "Sketch016")
body.addObject(sketch17)
sketch17.AttachmentSupport = (doc.XZ_Plane, [""])
sketch17.MapMode = "FlatFace"
sketch17.AttachmentOffset = App.Placement(V(0, 0, -19.8425), App.Rotation())
sketch17.addGeometry(Part.Circle(V(-36, 62, 0), V(0, 0, 1), 18), False)
sketch17.addGeometry(Part.Circle(V(-36, 62, 0), V(0, 0, 1), 5), False)
sketch17.addConstraint(Sketcher.Constraint("Coincident", 1, 3, 0, 3))
sketch17.addConstraint(Sketcher.Constraint("Diameter", 1, 10.0))
sketch17.addConstraint(Sketcher.Constraint("Diameter", 0, 35.0))
sketch17.addConstraint(Sketcher.Constraint("DistanceX", 0, 3, -1, 1, 36.0))
sketch17.addConstraint(Sketcher.Constraint("DistanceY", -1, 1, 0, 3, 62.5))
pad9 = doc.addObject("PartDesign::Pad", "Pad008")
body.addObject(pad9)
pad9.Profile = sketch17
pad9.Length = 2
pad9.Reversed = True

sketch18 = doc.addObject("Sketcher::SketchObject", "Sketch017")
body.addObject(sketch18)
sketch18.AttachmentSupport = (doc.XY_Plane, [""])
sketch18.MapMode = "FlatFace"
sketch18.addGeometry(Part.ArcOfCircle(Part.Circle(V(5, 145, 0), V(0, 0, 1), 140), math.radians(-134), math.radians(-92)), False)
sketch18.addGeometry(Part.LineSegment(V(0, 5, 0), V(0, 0, 0)), False)
sketch18.addGeometry(Part.LineSegment(V(0, 0, 0), V(-93, 0, 0)), False)
sketch18.addGeometry(Part.LineSegment(V(-93, 0, 0), V(-93, 45, 0)), False)
sketch18.addConstraint(Sketcher.Constraint("Coincident", 0, 2, 1, 1))
sketch18.addConstraint(Sketcher.Constraint("Coincident", 1, 2, 2, 1))
sketch18.addConstraint(Sketcher.Constraint("Coincident", 2, 2, 3, 1))
sketch18.addConstraint(Sketcher.Constraint("Coincident", 3, 2, 0, 1))
sketch18.addConstraint(Sketcher.Constraint("Vertical", 1))
sketch18.addConstraint(Sketcher.Constraint("Horizontal", 2))
sketch18.addConstraint(Sketcher.Constraint("Vertical", 3))
sketch18.addConstraint(Sketcher.Constraint("Coincident", 1, 2, -1, 1))
sketch18.addConstraint(Sketcher.Constraint("DistanceY", 1, 2, 1, 1, 5.0))
sketch18.addConstraint(Sketcher.Constraint("Radius", 0, 140.0))
sketch18.addConstraint(Sketcher.Constraint("DistanceY", 3, 1, 3, 2, 45.0))
sketch18.addConstraint(Sketcher.Constraint("DistanceX", 2, 2, 2, 1, 93.0733))
pocket9 = doc.addObject("PartDesign::Pocket", "Pocket008")
body.addObject(pocket9)
pocket9.Profile = sketch18
pocket9.Length = 126
pocket9.Reversed = True

sketch19 = doc.addObject("Sketcher::SketchObject", "Sketch018")
body.addObject(sketch19)
sketch19.AttachmentSupport = (doc.YZ_Plane, [""])
sketch19.MapMode = "FlatFace"
sketch19.AttachmentOffset = App.Placement(V(0, 0, 10), App.Rotation())
add_polygon(sketch19, [(20, 25), (20, 100), (-5, 100), (-5, 25)])
sketch19.addConstraint(Sketcher.Constraint("Vertical", 0))
sketch19.addConstraint(Sketcher.Constraint("Horizontal", 1))
sketch19.addConstraint(Sketcher.Constraint("Vertical", 2))
sketch19.addConstraint(Sketcher.Constraint("Horizontal", 3))
sketch19.addConstraint(Sketcher.Constraint("DistanceX", 1, 2, -1, 1, 5.0))
sketch19.addConstraint(Sketcher.Constraint("DistanceY", 0, 1, 0, 2, 75.0))
sketch19.addConstraint(Sketcher.Constraint("DistanceY", -1, 1, 0, 2, 100.0))
sketch19.addConstraint(Sketcher.Constraint("DistanceX", 1, 2, 1, 1, 24.8425))
pocket10 = doc.addObject("PartDesign::Pocket", "Pocket009")
body.addObject(pocket10)
pocket10.Profile = sketch19
pocket10.Type = "ThroughAll"

sketch20 = doc.addObject("Sketcher::SketchObject", "Sketch019")
body.addObject(sketch20)
sketch20.AttachmentSupport = (doc.XZ_Plane, [""])
sketch20.MapMode = "FlatFace"
sketch20.AttachmentOffset = App.Placement(V(0, 0, -19.8425), App.Rotation())
sketch20.addGeometry(Part.Circle(V(-12.4, 38.9, 0), V(0, 0, 1), 4), False)
sketch20.addGeometry(Part.Circle(V(-12.4, 86.1, 0), V(0, 0, 1), 4), False)
sketch20.addGeometry(Part.Circle(V(-59.6, 38.9, 0), V(0, 0, 1), 4), False)
sketch20.addGeometry(Part.Circle(V(-59.6, 86.1, 0), V(0, 0, 1), 4), False)
sketch20.addConstraint(Sketcher.Constraint("Equal", 0, 1))
sketch20.addConstraint(Sketcher.Constraint("Equal", 1, 2))
sketch20.addConstraint(Sketcher.Constraint("Equal", 2, 3))
sketch20.addConstraint(Sketcher.Constraint("Horizontal", 0, 3, 2, 3))
sketch20.addConstraint(Sketcher.Constraint("Horizontal", 1, 3, 3, 3))
sketch20.addConstraint(Sketcher.Constraint("Vertical", 0, 3, 1, 3))
sketch20.addConstraint(Sketcher.Constraint("Vertical", 2, 3, 3, 3))
sketch20.addConstraint(Sketcher.Constraint("Diameter", 0, 8.0))
sketch20.addConstraint(Sketcher.Constraint("DistanceX", 0, 3, -1, 1, 12.4))
sketch20.addConstraint(Sketcher.Constraint("DistanceY", -1, 1, 0, 3, 38.9))
sketch20.addConstraint(Sketcher.Constraint("DistanceY", -1, 1, 1, 3, 86.1))
sketch20.addConstraint(Sketcher.Constraint("DistanceX", 2, 3, -1, 1, 59.6))
pocket11 = doc.addObject("PartDesign::Pocket", "Pocket010")
body.addObject(pocket11)
pocket11.Profile = sketch20
pocket11.Length = 3

sketch21 = doc.addObject("Sketcher::SketchObject", "Sketch020")
body.addObject(sketch21)
sketch21.AttachmentSupport = (doc.XZ_Plane, [""])
sketch21.MapMode = "FlatFace"
sketch21.AttachmentOffset = App.Placement(V(0, 0, -19.8425), App.Rotation())
sketch21.addGeometry(Part.Circle(V(-17.5, 27.5, 0), V(0, 0, 1), 6.5), False)
sketch21.addGeometry(Part.Circle(V(-17.5, 27.5, 0), V(0, 0, 1), 2.5), False)
sketch21.addGeometry(Part.Circle(V(-17.5, 97.5, 0), V(0, 0, 1), 6.5), False)
sketch21.addGeometry(Part.Circle(V(-17.5, 97.5, 0), V(0, 0, 1), 2.5), False)
sketch21.addConstraint(Sketcher.Constraint("Coincident", 1, 3, 0, 3))
sketch21.addConstraint(Sketcher.Constraint("Coincident", 3, 3, 2, 3))
sketch21.addConstraint(Sketcher.Constraint("Equal", 0, 2))
sketch21.addConstraint(Sketcher.Constraint("Equal", 1, 3))
sketch21.addConstraint(Sketcher.Constraint("Vertical", 1, 3, 2, 3))
sketch21.addConstraint(Sketcher.Constraint("Diameter", 0, 13.0))
sketch21.addConstraint(Sketcher.Constraint("Diameter", 1, 5.0))
sketch21.addConstraint(Sketcher.Constraint("DistanceY", 0, 3, 2, 3, 70.0))
sketch21.addConstraint(Sketcher.Constraint("DistanceY", -1, 1, 0, 3, 27.5))
sketch21.addConstraint(Sketcher.Constraint("DistanceX", 0, 3, -1, 1, 17.4695))
pocket12 = doc.addObject("PartDesign::Pocket", "Pocket011")
body.addObject(pocket12)
pocket12.Profile = sketch21
pocket12.Type = "ThroughAll"
pocket12.Reversed = True

sketch22 = doc.addObject("Sketcher::SketchObject", "Sketch021")
body.addObject(sketch22)
sketch22.AttachmentSupport = (doc.XZ_Plane, [""])
sketch22.MapMode = "FlatFace"
sketch22.AttachmentOffset = App.Placement(V(0, 0, -19.8425), App.Rotation())
sketch22.addGeometry(Part.Circle(V(-17.5, 27.5, 0), V(0, 0, 1), 6.5), False)
sketch22.addGeometry(Part.Circle(V(-17.5, 27.5, 0), V(0, 0, 1), 2.5), False)
sketch22.addGeometry(Part.Circle(V(-17.5, 97.5, 0), V(0, 0, 1), 6.5), False)
sketch22.addGeometry(Part.Circle(V(-17.5, 97.5, 0), V(0, 0, 1), 2.5), False)
sketch22.addGeometry(Part.Circle(V(-67.5, 97.5, 0), V(0, 0, 1), 2.5), False)
sketch22.addGeometry(Part.Circle(V(-67.5, 27.5, 0), V(0, 0, 1), 2.5), False)
sketch22.addConstraint(Sketcher.Constraint("Coincident", 1, 3, 0, 3))
sketch22.addConstraint(Sketcher.Constraint("Coincident", 3, 3, 2, 3))
sketch22.addConstraint(Sketcher.Constraint("Equal", 0, 2))
sketch22.addConstraint(Sketcher.Constraint("Equal", 1, 3))
sketch22.addConstraint(Sketcher.Constraint("Equal", 3, 4))
sketch22.addConstraint(Sketcher.Constraint("Equal", 4, 5))
sketch22.addConstraint(Sketcher.Constraint("Horizontal", 3, 3, 4, 3))
sketch22.addConstraint(Sketcher.Constraint("Horizontal", 1, 3, 5, 3))
sketch22.addConstraint(Sketcher.Constraint("Vertical", 1, 3, 2, 3))
sketch22.addConstraint(Sketcher.Constraint("Vertical", 4, 3, 5, 3))
sketch22.addConstraint(Sketcher.Constraint("Diameter", 0, 13.0))
sketch22.addConstraint(Sketcher.Constraint("Diameter", 1, 5.0))
sketch22.addConstraint(Sketcher.Constraint("DistanceY", 0, 3, 2, 3, 70.0))
sketch22.addConstraint(Sketcher.Constraint("DistanceX", 4, 3, 2, 3, 50.0))
sketch22.addConstraint(Sketcher.Constraint("DistanceY", -1, 1, 0, 3, 27.5))
sketch22.addConstraint(Sketcher.Constraint("DistanceX", 0, 3, -1, 1, 17.4695))
pocket13 = doc.addObject("PartDesign::Pocket", "Pocket012")
body.addObject(pocket13)
pocket13.Profile = sketch22
pocket13.Length = 3

sketch23 = doc.addObject("Sketcher::SketchObject", "Sketch022")
body.addObject(sketch23)
sketch23.AttachmentSupport = (doc.XZ_Plane, [""])
sketch23.MapMode = "FlatFace"
sketch23.AttachmentOffset = App.Placement(V(0, 0, -50), App.Rotation())
add_polygon(sketch23, [(0, 125), (10, 125), (10, 0), (0, 0)])
sketch23.addConstraint(Sketcher.Constraint("Horizontal", 0))
sketch23.addConstraint(Sketcher.Constraint("Vertical", 1))
sketch23.addConstraint(Sketcher.Constraint("Horizontal", 2))
sketch23.addConstraint(Sketcher.Constraint("Vertical", 3))
sketch23.addConstraint(Sketcher.Constraint("Coincident", 2, 2, -1, 1))
sketch23.addConstraint(Sketcher.Constraint("DistanceX", 0, 1, 0, 2, 10.0))
sketch23.addConstraint(Sketcher.Constraint("DistanceY", 1, 2, 1, 1, 125.0))
pad10 = doc.addObject("PartDesign::Pad", "Pad009")
body.addObject(pad10)
pad10.Profile = sketch23
pad10.Length = 5

doc.recompute()
